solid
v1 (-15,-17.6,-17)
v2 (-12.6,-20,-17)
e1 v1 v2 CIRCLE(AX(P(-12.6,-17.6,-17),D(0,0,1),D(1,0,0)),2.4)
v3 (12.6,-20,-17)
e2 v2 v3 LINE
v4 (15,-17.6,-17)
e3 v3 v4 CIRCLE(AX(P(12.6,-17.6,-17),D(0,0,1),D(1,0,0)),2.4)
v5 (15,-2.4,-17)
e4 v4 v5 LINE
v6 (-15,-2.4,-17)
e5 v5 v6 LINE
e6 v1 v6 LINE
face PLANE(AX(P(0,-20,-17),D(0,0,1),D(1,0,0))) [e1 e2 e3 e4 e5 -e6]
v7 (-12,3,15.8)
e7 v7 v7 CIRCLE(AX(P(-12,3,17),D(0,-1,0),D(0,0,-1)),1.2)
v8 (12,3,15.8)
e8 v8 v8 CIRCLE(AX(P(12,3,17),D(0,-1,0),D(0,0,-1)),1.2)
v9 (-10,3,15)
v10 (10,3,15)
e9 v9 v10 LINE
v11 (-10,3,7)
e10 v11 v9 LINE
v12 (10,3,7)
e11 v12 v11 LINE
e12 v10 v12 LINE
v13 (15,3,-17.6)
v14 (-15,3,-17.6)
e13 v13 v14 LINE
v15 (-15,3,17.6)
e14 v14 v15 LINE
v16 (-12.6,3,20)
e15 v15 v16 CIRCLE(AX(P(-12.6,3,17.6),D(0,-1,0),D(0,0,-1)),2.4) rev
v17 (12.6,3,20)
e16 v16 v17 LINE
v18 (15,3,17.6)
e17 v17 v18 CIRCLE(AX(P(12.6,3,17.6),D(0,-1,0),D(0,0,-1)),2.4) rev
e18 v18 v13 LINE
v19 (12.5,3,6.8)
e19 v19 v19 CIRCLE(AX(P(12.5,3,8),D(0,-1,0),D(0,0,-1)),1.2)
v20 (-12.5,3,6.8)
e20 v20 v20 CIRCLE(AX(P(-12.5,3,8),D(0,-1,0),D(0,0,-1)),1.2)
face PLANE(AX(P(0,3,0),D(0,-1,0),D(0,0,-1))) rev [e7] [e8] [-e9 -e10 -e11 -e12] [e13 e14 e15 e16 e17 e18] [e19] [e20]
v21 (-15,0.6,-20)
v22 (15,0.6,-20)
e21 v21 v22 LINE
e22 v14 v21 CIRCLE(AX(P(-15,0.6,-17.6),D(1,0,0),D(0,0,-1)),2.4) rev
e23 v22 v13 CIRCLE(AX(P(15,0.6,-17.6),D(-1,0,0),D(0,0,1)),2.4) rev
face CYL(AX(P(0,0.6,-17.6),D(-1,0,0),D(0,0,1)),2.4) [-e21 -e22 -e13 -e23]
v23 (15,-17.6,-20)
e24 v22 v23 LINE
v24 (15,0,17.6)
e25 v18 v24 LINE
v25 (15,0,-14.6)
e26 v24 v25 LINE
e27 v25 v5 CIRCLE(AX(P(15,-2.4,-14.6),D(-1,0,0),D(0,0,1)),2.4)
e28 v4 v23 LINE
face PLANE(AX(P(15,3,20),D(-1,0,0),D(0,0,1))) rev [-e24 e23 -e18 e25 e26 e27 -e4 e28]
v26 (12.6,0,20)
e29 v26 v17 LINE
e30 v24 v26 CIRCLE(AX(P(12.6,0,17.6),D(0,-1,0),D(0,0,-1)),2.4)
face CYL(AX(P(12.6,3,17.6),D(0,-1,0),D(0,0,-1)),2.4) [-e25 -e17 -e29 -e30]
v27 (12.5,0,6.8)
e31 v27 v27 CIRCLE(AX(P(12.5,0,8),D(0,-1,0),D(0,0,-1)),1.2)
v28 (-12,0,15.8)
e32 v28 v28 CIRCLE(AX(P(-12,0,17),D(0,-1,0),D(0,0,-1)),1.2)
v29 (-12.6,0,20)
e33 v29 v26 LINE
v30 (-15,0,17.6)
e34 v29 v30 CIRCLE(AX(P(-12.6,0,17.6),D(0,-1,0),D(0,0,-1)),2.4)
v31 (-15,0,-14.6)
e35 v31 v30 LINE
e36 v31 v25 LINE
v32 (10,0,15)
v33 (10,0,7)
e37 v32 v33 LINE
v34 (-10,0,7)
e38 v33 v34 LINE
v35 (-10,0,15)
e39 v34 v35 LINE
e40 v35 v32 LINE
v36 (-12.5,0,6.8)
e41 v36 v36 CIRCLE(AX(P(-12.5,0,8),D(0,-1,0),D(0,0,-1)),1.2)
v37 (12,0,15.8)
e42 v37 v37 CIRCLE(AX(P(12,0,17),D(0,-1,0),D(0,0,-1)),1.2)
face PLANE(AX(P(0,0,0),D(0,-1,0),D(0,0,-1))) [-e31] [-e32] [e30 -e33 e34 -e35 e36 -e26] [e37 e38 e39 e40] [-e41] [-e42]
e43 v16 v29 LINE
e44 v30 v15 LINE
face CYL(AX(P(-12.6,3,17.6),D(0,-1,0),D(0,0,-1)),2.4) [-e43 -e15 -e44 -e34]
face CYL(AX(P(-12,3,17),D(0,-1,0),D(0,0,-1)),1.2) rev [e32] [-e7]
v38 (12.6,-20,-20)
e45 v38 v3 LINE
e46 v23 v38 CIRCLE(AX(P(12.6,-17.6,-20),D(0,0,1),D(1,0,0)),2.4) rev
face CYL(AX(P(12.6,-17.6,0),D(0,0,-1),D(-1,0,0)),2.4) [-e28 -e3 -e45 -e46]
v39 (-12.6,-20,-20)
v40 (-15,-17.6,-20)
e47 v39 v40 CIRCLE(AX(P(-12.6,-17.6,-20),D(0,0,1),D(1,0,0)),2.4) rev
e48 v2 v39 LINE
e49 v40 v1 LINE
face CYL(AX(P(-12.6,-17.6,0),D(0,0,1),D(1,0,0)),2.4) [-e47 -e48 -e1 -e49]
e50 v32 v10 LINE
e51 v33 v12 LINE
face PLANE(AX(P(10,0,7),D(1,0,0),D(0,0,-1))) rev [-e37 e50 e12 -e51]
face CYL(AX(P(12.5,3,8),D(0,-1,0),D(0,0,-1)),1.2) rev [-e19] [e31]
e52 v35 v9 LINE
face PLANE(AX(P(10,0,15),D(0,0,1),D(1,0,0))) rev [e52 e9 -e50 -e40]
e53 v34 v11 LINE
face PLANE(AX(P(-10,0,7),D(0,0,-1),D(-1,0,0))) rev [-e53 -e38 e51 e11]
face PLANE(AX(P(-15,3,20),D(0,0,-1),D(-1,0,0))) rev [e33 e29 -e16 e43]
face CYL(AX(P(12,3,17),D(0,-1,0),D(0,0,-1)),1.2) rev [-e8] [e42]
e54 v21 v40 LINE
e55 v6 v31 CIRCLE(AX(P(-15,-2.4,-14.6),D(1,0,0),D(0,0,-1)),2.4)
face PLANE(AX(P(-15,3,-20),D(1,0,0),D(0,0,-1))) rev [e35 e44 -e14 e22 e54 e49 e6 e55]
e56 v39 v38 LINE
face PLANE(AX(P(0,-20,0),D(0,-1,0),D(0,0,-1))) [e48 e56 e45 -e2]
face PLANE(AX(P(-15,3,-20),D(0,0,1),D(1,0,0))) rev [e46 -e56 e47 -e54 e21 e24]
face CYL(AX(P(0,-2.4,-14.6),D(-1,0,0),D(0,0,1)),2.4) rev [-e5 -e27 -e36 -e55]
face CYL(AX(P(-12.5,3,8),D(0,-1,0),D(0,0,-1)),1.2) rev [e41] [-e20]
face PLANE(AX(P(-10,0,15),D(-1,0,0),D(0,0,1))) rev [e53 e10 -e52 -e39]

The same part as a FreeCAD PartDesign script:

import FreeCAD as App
import Part
import Sketcher

V = App.Vector
Q = App.Units.Quantity


def edges_at(feature, points):
    """Names of the edges that pass closest to the given points."""
    edges = feature.Shape.Edges
    near = lambda p: min(range(len(edges)), key=lambda i: edges[i].distToShape(Part.Vertex(*p))[0])
    return sorted({f"Edge{near(p) + 1}" for p in points})

doc = App.newDocument("Part")
params = doc.addObject("Spreadsheet::Sheet", "Params")
for row, (alias, value) in enumerate([
    ("sketch1_width", "30 mm"),
    ("sketch1_height", "40 mm"),
    ("pad1_length", "3 mm"),
    ("sketch2_width", "20 mm"),
    ("sketch2_height", "8 mm"),
    ("sketch3_diameter", "2.4 mm"),
    ("sketch4_width", "30 mm"),
    ("sketch4_height", "3 mm"),
    ("pad2_length", "20 mm"),
    ("fillet_radius", "2.4 mm"),
    ("fillet2_radius", "2.4 mm"),
    ("fillet3_radius", "2.4 mm"),
    ("fillet4_radius", "2.4 mm"),
], start=1):
    params.set(f"A{row}", alias)
    params.set(f"B{row}", "=" + value)
    params.setAlias(f"B{row}", alias)

body = doc.addObject("PartDesign::Body", "Body")

# Sketch on XZ plane
sketch1 = body.newObject("Sketcher::SketchObject", "Sketch")
sketch1.AttachmentSupport = (doc.getObject("XZ_Plane"), [""])
sketch1.MapMode = "FlatFace"
sketch1.addGeometry(Part.LineSegment(V(-15, -20, 0), V(-15, 20, 0)), False)
sketch1.addGeometry(Part.LineSegment(V(-15, 20, 0), V(15, 20, 0)), False)
sketch1.addGeometry(Part.LineSegment(V(15, 20, 0), V(15, -20, 0)), False)
sketch1.addGeometry(Part.LineSegment(V(15, -20, 0), V(-15, -20, 0)), False)
sketch1.addConstraint(Sketcher.Constraint("Coincident", 0, 2, 1, 1))
sketch1.addConstraint(Sketcher.Constraint("Coincident", 1, 2, 2, 1))
sketch1.addConstraint(Sketcher.Constraint("Coincident", 2, 2, 3, 1))
sketch1.addConstraint(Sketcher.Constraint("Coincident", 3, 2, 0, 1))
sketch1.addConstraint(Sketcher.Constraint("Vertical", 0))
sketch1.addConstraint(Sketcher.Constraint("Horizontal", 1))
sketch1.addConstraint(Sketcher.Constraint("Vertical", 2))
sketch1.addConstraint(Sketcher.Constraint("Horizontal", 3))
sketch1.addConstraint(Sketcher.Constraint("Symmetric", 0, 2, 2, 2, -1, 1))
sketch1.addConstraint(Sketcher.Constraint("DistanceX", 1, 1, 1, 2, Q("30 mm")))
sketch1.addConstraint(Sketcher.Constraint("DistanceY", 0, 1, 0, 2, Q("40 mm")))
sketch1.setExpression("Constraints[9]", "Params.sketch1_width")
sketch1.setExpression("Constraints[10]", "Params.sketch1_height")
pad1 = body.newObject("PartDesign::Pad", "Pad")
pad1.Profile = sketch1
pad1.setExpression("Length", "Params.pad1_length")
pad1.Reversed = True

# Sketch on XZ plane
sketch2 = body.newObject("Sketcher::SketchObject", "Sketch001")
sketch2.AttachmentSupport = (doc.getObject("XZ_Plane"), [""])
sketch2.MapMode = "FlatFace"
sketch2.AttachmentOffset = App.Placement(V(0, 0, -3), App.Rotation())
sketch2.addGeometry(Part.LineSegment(V(-10, 7, 0), V(-10, 15, 0)), False)
sketch2.addGeometry(Part.LineSegment(V(-10, 15, 0), V(10, 15, 0)), False)
sketch2.addGeometry(Part.LineSegment(V(10, 15, 0), V(10, 7, 0)), False)
sketch2.addGeometry(Part.LineSegment(V(10, 7, 0), V(-10, 7, 0)), False)
sketch2.addConstraint(Sketcher.Constraint("Coincident", 0, 2, 1, 1))
sketch2.addConstraint(Sketcher.Constraint("Coincident", 1, 2, 2, 1))
sketch2.addConstraint(Sketcher.Constraint("Coincident", 2, 2, 3, 1))
sketch2.addConstraint(Sketcher.Constraint("Coincident", 3, 2, 0, 1))
sketch2.addConstraint(Sketcher.Constraint("Vertical", 0))
sketch2.addConstraint(Sketcher.Constraint("Horizontal", 1))
sketch2.addConstraint(Sketcher.Constraint("Vertical", 2))
sketch2.addConstraint(Sketcher.Constraint("Horizontal", 3))
sketch2.addConstraint(Sketcher.Constraint("DistanceX", 1, 1, 1, 2, Q("20 mm")))
sketch2.addConstraint(Sketcher.Constraint("DistanceY", 0, 1, 0, 2, Q("8 mm")))
sketch2.addConstraint(Sketcher.Constraint("DistanceX", 0, 2, -1, 1, Q("10 mm")))
sketch2.addConstraint(Sketcher.Constraint("DistanceY", -1, 1, 0, 2, Q("15 mm")))
sketch2.setExpression("Constraints[8]", "Params.sketch2_width")
sketch2.setExpression("Constraints[9]", "Params.sketch2_height")
pocket1 = body.newObject("PartDesign::Pocket", "Pocket")
pocket1.Profile = sketch2
pocket1.Type = "ThroughAll"
pocket1.Reversed = True

# Sketch on XZ plane
sketch3 = body.newObject("Sketcher::SketchObject", "Sketch002")
sketch3.AttachmentSupport = (doc.getObject("XZ_Plane"), [""])
sketch3.MapMode = "FlatFace"
sketch3.addGeometry(Part.Circle(V(-12, 17, 0), V(0, 0, 1), 1.2), False)
sketch3.addGeometry(Part.Circle(V(12, 17, 0), V(0, 0, 1), 1.2), False)
sketch3.addGeometry(Part.Circle(V(-12.5, 8, 0), V(0, 0, 1), 1.2), False)
sketch3.addGeometry(Part.Circle(V(12.5, 8, 0), V(0, 0, 1), 1.2), False)
sketch3.addConstraint(Sketcher.Constraint("Equal", 0, 1))
sketch3.addConstraint(Sketcher.Constraint("Equal", 1, 2))
sketch3.addConstraint(Sketcher.Constraint("Equal", 2, 3))
sketch3.addConstraint(Sketcher.Constraint("Symmetric", 0, 3, 1, 3, -2))
sketch3.addConstraint(Sketcher.Constraint("Symmetric", 2, 3, 3, 3, -2))
sketch3.addConstraint(Sketcher.Constraint("Diameter", 0, Q("2.4 mm")))
sketch3.addConstraint(Sketcher.Constraint("DistanceX", 0, 3, -1, 1, Q("12 mm")))
sketch3.addConstraint(Sketcher.Constraint("DistanceY", -1, 1, 0, 3, Q("17 mm")))
sketch3.addConstraint(Sketcher.Constraint("DistanceY", -1, 1, 2, 3, Q("8 mm")))
sketch3.addConstraint(Sketcher.Constraint("DistanceX", 2, 3, 3, 3, Q("25 mm")))
sketch3.setExpression("Constraints[5]", "Params.sketch3_diameter")
pocket2 = body.newObject("PartDesign::Pocket", "Pocket001")
pocket2.Profile = sketch3
pocket2.Type = "ThroughAll"

# Sketch on XZ plane
sketch4 = body.newObject("Sketcher::SketchObject", "Sketch003")
sketch4.AttachmentSupport = (doc.getObject("XZ_Plane"), [""])
sketch4.MapMode = "FlatFace"
sketch4.addGeometry(Part.LineSegment(V(-15, -17, 0), V(-15, -20, 0)), False)
sketch4.addGeometry(Part.LineSegment(V(-15, -20, 0), V(15, -20, 0)), False)
sketch4.addGeometry(Part.LineSegment(V(15, -20, 0), V(15, -17, 0)), False)
sketch4.addGeometry(Part.LineSegment(V(15, -17, 0), V(-15, -17, 0)), False)
sketch4.addConstraint(Sketcher.Constraint("Coincident", 0, 2, 1, 1))
sketch4.addConstraint(Sketcher.Constraint("Coincident", 1, 2, 2, 1))
sketch4.addConstraint(Sketcher.Constraint("Coincident", 2, 2, 3, 1))
sketch4.addConstraint(Sketcher.Constraint("Coincident", 3, 2, 0, 1))
sketch4.addConstraint(Sketcher.Constraint("Vertical", 0))
sketch4.addConstraint(Sketcher.Constraint("Horizontal", 1))
sketch4.addConstraint(Sketcher.Constraint("Vertical", 2))
sketch4.addConstraint(Sketcher.Constraint("Horizontal", 3))
sketch4.addConstraint(Sketcher.Constraint("DistanceX", 1, 1, 1, 2, Q("30 mm")))
sketch4.addConstraint(Sketcher.Constraint("DistanceY", 0, 2, 0, 1, Q("3 mm")))
sketch4.addConstraint(Sketcher.Constraint("DistanceX", 0, 2, -1, 1, Q("15 mm")))
sketch4.addConstraint(Sketcher.Constraint("DistanceY", 0, 2, -1, 1, Q("20 mm")))
sketch4.setExpression("Constraints[8]", "Params.sketch4_width")
sketch4.setExpression("Constraints[9]", "Params.sketch4_height")
pad2 = body.newObject("PartDesign::Pad", "Pad001")
pad2.Profile = sketch4
pad2.setExpression("Length", "Params.pad2_length")
doc.recompute()

fillet = body.newObject("PartDesign::Fillet", "Fillet")
fillet.Base = (pad2, edges_at(pad2, [(0, 0, -17)]))
fillet.setExpression("Radius", "Params.fillet_radius")
doc.recompute()

fillet2 = body.newObject("PartDesign::Fillet", "Fillet001")
fillet2.Base = (fillet, edges_at(fillet, [(0, 3, -20)]))
fillet2.setExpression("Radius", "Params.fillet2_radius")
doc.recompute()

fillet3 = body.newObject("PartDesign::Fillet", "Fillet002")
fillet3.Base = (fillet2, edges_at(fillet2, [(15, 1.5, 20), (-15, 1.5, 20)]))
fillet3.setExpression("Radius", "Params.fillet3_radius")
doc.recompute()

fillet4 = body.newObject("PartDesign::Fillet", "Fillet003")
fillet4.Base = (fillet3, edges_at(fillet3, [(-15, -20, -18.5), (15, -20, -18.5)]))
fillet4.setExpression("Radius", "Params.fillet4_radius")

doc.recompute()
